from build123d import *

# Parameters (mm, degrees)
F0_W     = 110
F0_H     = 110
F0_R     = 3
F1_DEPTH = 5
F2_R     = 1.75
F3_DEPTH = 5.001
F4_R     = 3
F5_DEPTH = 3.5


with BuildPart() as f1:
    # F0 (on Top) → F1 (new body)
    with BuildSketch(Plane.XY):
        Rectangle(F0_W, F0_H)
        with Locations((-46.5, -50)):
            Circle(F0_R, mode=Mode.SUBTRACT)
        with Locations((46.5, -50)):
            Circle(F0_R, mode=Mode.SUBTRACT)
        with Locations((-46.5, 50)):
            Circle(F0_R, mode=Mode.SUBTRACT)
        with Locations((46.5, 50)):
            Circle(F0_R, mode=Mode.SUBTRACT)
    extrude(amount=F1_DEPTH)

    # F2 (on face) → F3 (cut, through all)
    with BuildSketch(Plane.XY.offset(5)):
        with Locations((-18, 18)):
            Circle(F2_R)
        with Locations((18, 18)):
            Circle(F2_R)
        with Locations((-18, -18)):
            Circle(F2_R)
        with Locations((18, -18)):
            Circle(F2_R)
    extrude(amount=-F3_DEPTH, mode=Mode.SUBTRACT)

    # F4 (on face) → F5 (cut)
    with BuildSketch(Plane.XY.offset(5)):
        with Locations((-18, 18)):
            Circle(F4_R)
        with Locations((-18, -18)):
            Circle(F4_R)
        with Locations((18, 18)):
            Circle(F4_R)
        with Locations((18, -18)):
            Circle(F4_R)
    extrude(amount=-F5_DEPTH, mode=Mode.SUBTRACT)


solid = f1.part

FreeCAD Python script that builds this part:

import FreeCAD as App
import Part
import Sketcher


def add_polygon(sketch, points):
    """Adds a closed chain of lines whose ends are joined by coincident constraints."""
    first, n = sketch.GeometryCount, len(points)
    for a, b in zip(points, points[1:] + points[:1]):
        sketch.addGeometry(Part.LineSegment(App.Vector(*a, 0), App.Vector(*b, 0)), False)
    for i in range(n):
        sketch.addConstraint(Sketcher.Constraint("Coincident", first + i, 2, first + (i + 1) % n, 1))

doc = App.newDocument("Part")
body = doc.addObject("PartDesign::Body", "Body")

# Sketch on XY plane
sketch1 = doc.addObject("Sketcher::SketchObject", "Sketch")
body.addObject(sketch1)
sketch1.AttachmentSupport = (doc.XY_Plane, [""])
sketch1.MapMode = "FlatFace"
add_polygon(sketch1, [(-55, 55), (-55, -55), (55, -55), (55, 55)])  # lines 0-3
sketch1.addGeometry(Part.Circle(App.Vector(-46.5, -50, 0), App.Vector(0, 0, 1), 3), False)  # 4
sketch1.addGeometry(Part.Circle(App.Vector(46.5, -50, 0), App.Vector(0, 0, 1), 3), False)  # 5
sketch1.addGeometry(Part.Circle(App.Vector(-46.5, 50, 0), App.Vector(0, 0, 1), 3), False)  # 6
sketch1.addGeometry(Part.Circle(App.Vector(46.5, 50, 0), App.Vector(0, 0, 1), 3), False)  # 7
sketch1.addConstraint([
    Sketcher.Constraint("Vertical", 0),
    Sketcher.Constraint("Horizontal", 1),
    Sketcher.Constraint("Vertical", 2),
    Sketcher.Constraint("Horizontal", 3),
    Sketcher.Constraint("Equal", 4, 5),
    Sketcher.Constraint("Equal", 5, 6),
    Sketcher.Constraint("Equal", 6, 7),
    Sketcher.Constraint("Symmetric", 5, 3, 6, 3, -1, 1),
    Sketcher.Constraint("Symmetric", 4, 3, 7, 3, -1, 1),
    Sketcher.Constraint("Symmetric", 0, 2, 2, 2, -1, 1),
    Sketcher.Constraint("Symmetric", 4, 3, 5, 3, -2),
    Sketcher.Constraint("Equal", 3, 0),
    Sketcher.Constraint("Diameter", 4, 6.0),
    Sketcher.Constraint("DistanceX", 1, 1, 1, 2, 110.0),
    Sketcher.Constraint("DistanceY", 4, 3, -1, 1, 50.0),
    Sketcher.Constraint("DistanceX", 4, 3, 5, 3, 93.0),
])
pad1 = doc.addObject("PartDesign::Pad", "Pad")
body.addObject(pad1)
pad1.Profile = sketch1
pad1.Length = 5

# Sketch on XY plane
sketch2 = doc.addObject("Sketcher::SketchObject", "Sketch001")
body.addObject(sketch2)
sketch2.AttachmentSupport = (doc.XY_Plane, [""])
sketch2.MapMode = "FlatFace"
sketch2.AttachmentOffset = App.Placement(App.Vector(0, 0, 5), App.Rotation())
sketch2.addGeometry([
    Part.Circle(App.Vector(-18, 18, 0), App.Vector(0, 0, 1), 1.75),
    Part.Circle(App.Vector(18, 18, 0), App.Vector(0, 0, 1), 1.75),
    Part.Circle(App.Vector(-18, -18, 0), App.Vector(0, 0, 1), 1.75),
    Part.Circle(App.Vector(18, -18, 0), App.Vector(0, 0, 1), 1.75),
], False)
sketch2.addConstraint([
    Sketcher.Constraint("Equal", 0, 1),
    Sketcher.Constraint("Equal", 1, 2),
    Sketcher.Constraint("Equal", 2, 3),
    Sketcher.Constraint("Symmetric", 1, 3, 2, 3, -1, 1),
    Sketcher.Constraint("Symmetric", 0, 3, 3, 3, -1, 1),
    Sketcher.Constraint("Symmetric", 0, 3, 1, 3, -2),
    Sketcher.Constraint("Diameter", 0, 3.5),
    Sketcher.Constraint("DistanceX", 0, 3, -1, 1, 18.0),
    Sketcher.Constraint("DistanceY", -1, 1, 0, 3, 18.0),
])
pocket1 = doc.addObject("PartDesign::Pocket", "Pocket")
body.addObject(pocket1)
pocket1.Profile = sketch2
pocket1.Type = "ThroughAll"

# Sketch on XY plane
sketch3 = doc.addObject("Sketcher::SketchObject", "Sketch002")
body.addObject(sketch3)
sketch3.AttachmentSupport = (doc.XY_Plane, [""])
sketch3.MapMode = "FlatFace"
sketch3.AttachmentOffset = App.Placement(App.Vector(0, 0, 5), App.Rotation())
sketch3.addGeometry([
    Part.Circle(App.Vector(-18, 18, 0), App.Vector(0, 0, 1), 3),
    Part.Circle(App.Vector(-18, -18, 0), App.Vector(0, 0, 1), 3),
    Part.Circle(App.Vector(18, 18, 0), App.Vector(0, 0, 1), 3),
    Part.Circle(App.Vector(18, -18, 0), App.Vector(0, 0, 1), 3),
], False)
sketch3.addConstraint([
    Sketcher.Constraint("Equal", 0, 1),
    Sketcher.Constraint("Equal", 1, 2),
    Sketcher.Constraint("Equal", 2, 3),
    Sketcher.Constraint("Symmetric", 1, 3, 2, 3, -1, 1),
    Sketcher.Constraint("Symmetric", 0, 3, 3, 3, -1, 1),
    Sketcher.Constraint("Symmetric", 0, 3, 2, 3, -2),
    Sketcher.Constraint("Diameter", 0, 6.0),
    Sketcher.Constraint("DistanceX", 0, 3, -1, 1, 18.0),
    Sketcher.Constraint("DistanceY", -1, 1, 0, 3, 18.0),
])
pocket2 = doc.addObject("PartDesign::Pocket", "Pocket001")
body.addObject(pocket2)
pocket2.Profile = sketch3
pocket2.Length = 3.5

doc.recompute()
